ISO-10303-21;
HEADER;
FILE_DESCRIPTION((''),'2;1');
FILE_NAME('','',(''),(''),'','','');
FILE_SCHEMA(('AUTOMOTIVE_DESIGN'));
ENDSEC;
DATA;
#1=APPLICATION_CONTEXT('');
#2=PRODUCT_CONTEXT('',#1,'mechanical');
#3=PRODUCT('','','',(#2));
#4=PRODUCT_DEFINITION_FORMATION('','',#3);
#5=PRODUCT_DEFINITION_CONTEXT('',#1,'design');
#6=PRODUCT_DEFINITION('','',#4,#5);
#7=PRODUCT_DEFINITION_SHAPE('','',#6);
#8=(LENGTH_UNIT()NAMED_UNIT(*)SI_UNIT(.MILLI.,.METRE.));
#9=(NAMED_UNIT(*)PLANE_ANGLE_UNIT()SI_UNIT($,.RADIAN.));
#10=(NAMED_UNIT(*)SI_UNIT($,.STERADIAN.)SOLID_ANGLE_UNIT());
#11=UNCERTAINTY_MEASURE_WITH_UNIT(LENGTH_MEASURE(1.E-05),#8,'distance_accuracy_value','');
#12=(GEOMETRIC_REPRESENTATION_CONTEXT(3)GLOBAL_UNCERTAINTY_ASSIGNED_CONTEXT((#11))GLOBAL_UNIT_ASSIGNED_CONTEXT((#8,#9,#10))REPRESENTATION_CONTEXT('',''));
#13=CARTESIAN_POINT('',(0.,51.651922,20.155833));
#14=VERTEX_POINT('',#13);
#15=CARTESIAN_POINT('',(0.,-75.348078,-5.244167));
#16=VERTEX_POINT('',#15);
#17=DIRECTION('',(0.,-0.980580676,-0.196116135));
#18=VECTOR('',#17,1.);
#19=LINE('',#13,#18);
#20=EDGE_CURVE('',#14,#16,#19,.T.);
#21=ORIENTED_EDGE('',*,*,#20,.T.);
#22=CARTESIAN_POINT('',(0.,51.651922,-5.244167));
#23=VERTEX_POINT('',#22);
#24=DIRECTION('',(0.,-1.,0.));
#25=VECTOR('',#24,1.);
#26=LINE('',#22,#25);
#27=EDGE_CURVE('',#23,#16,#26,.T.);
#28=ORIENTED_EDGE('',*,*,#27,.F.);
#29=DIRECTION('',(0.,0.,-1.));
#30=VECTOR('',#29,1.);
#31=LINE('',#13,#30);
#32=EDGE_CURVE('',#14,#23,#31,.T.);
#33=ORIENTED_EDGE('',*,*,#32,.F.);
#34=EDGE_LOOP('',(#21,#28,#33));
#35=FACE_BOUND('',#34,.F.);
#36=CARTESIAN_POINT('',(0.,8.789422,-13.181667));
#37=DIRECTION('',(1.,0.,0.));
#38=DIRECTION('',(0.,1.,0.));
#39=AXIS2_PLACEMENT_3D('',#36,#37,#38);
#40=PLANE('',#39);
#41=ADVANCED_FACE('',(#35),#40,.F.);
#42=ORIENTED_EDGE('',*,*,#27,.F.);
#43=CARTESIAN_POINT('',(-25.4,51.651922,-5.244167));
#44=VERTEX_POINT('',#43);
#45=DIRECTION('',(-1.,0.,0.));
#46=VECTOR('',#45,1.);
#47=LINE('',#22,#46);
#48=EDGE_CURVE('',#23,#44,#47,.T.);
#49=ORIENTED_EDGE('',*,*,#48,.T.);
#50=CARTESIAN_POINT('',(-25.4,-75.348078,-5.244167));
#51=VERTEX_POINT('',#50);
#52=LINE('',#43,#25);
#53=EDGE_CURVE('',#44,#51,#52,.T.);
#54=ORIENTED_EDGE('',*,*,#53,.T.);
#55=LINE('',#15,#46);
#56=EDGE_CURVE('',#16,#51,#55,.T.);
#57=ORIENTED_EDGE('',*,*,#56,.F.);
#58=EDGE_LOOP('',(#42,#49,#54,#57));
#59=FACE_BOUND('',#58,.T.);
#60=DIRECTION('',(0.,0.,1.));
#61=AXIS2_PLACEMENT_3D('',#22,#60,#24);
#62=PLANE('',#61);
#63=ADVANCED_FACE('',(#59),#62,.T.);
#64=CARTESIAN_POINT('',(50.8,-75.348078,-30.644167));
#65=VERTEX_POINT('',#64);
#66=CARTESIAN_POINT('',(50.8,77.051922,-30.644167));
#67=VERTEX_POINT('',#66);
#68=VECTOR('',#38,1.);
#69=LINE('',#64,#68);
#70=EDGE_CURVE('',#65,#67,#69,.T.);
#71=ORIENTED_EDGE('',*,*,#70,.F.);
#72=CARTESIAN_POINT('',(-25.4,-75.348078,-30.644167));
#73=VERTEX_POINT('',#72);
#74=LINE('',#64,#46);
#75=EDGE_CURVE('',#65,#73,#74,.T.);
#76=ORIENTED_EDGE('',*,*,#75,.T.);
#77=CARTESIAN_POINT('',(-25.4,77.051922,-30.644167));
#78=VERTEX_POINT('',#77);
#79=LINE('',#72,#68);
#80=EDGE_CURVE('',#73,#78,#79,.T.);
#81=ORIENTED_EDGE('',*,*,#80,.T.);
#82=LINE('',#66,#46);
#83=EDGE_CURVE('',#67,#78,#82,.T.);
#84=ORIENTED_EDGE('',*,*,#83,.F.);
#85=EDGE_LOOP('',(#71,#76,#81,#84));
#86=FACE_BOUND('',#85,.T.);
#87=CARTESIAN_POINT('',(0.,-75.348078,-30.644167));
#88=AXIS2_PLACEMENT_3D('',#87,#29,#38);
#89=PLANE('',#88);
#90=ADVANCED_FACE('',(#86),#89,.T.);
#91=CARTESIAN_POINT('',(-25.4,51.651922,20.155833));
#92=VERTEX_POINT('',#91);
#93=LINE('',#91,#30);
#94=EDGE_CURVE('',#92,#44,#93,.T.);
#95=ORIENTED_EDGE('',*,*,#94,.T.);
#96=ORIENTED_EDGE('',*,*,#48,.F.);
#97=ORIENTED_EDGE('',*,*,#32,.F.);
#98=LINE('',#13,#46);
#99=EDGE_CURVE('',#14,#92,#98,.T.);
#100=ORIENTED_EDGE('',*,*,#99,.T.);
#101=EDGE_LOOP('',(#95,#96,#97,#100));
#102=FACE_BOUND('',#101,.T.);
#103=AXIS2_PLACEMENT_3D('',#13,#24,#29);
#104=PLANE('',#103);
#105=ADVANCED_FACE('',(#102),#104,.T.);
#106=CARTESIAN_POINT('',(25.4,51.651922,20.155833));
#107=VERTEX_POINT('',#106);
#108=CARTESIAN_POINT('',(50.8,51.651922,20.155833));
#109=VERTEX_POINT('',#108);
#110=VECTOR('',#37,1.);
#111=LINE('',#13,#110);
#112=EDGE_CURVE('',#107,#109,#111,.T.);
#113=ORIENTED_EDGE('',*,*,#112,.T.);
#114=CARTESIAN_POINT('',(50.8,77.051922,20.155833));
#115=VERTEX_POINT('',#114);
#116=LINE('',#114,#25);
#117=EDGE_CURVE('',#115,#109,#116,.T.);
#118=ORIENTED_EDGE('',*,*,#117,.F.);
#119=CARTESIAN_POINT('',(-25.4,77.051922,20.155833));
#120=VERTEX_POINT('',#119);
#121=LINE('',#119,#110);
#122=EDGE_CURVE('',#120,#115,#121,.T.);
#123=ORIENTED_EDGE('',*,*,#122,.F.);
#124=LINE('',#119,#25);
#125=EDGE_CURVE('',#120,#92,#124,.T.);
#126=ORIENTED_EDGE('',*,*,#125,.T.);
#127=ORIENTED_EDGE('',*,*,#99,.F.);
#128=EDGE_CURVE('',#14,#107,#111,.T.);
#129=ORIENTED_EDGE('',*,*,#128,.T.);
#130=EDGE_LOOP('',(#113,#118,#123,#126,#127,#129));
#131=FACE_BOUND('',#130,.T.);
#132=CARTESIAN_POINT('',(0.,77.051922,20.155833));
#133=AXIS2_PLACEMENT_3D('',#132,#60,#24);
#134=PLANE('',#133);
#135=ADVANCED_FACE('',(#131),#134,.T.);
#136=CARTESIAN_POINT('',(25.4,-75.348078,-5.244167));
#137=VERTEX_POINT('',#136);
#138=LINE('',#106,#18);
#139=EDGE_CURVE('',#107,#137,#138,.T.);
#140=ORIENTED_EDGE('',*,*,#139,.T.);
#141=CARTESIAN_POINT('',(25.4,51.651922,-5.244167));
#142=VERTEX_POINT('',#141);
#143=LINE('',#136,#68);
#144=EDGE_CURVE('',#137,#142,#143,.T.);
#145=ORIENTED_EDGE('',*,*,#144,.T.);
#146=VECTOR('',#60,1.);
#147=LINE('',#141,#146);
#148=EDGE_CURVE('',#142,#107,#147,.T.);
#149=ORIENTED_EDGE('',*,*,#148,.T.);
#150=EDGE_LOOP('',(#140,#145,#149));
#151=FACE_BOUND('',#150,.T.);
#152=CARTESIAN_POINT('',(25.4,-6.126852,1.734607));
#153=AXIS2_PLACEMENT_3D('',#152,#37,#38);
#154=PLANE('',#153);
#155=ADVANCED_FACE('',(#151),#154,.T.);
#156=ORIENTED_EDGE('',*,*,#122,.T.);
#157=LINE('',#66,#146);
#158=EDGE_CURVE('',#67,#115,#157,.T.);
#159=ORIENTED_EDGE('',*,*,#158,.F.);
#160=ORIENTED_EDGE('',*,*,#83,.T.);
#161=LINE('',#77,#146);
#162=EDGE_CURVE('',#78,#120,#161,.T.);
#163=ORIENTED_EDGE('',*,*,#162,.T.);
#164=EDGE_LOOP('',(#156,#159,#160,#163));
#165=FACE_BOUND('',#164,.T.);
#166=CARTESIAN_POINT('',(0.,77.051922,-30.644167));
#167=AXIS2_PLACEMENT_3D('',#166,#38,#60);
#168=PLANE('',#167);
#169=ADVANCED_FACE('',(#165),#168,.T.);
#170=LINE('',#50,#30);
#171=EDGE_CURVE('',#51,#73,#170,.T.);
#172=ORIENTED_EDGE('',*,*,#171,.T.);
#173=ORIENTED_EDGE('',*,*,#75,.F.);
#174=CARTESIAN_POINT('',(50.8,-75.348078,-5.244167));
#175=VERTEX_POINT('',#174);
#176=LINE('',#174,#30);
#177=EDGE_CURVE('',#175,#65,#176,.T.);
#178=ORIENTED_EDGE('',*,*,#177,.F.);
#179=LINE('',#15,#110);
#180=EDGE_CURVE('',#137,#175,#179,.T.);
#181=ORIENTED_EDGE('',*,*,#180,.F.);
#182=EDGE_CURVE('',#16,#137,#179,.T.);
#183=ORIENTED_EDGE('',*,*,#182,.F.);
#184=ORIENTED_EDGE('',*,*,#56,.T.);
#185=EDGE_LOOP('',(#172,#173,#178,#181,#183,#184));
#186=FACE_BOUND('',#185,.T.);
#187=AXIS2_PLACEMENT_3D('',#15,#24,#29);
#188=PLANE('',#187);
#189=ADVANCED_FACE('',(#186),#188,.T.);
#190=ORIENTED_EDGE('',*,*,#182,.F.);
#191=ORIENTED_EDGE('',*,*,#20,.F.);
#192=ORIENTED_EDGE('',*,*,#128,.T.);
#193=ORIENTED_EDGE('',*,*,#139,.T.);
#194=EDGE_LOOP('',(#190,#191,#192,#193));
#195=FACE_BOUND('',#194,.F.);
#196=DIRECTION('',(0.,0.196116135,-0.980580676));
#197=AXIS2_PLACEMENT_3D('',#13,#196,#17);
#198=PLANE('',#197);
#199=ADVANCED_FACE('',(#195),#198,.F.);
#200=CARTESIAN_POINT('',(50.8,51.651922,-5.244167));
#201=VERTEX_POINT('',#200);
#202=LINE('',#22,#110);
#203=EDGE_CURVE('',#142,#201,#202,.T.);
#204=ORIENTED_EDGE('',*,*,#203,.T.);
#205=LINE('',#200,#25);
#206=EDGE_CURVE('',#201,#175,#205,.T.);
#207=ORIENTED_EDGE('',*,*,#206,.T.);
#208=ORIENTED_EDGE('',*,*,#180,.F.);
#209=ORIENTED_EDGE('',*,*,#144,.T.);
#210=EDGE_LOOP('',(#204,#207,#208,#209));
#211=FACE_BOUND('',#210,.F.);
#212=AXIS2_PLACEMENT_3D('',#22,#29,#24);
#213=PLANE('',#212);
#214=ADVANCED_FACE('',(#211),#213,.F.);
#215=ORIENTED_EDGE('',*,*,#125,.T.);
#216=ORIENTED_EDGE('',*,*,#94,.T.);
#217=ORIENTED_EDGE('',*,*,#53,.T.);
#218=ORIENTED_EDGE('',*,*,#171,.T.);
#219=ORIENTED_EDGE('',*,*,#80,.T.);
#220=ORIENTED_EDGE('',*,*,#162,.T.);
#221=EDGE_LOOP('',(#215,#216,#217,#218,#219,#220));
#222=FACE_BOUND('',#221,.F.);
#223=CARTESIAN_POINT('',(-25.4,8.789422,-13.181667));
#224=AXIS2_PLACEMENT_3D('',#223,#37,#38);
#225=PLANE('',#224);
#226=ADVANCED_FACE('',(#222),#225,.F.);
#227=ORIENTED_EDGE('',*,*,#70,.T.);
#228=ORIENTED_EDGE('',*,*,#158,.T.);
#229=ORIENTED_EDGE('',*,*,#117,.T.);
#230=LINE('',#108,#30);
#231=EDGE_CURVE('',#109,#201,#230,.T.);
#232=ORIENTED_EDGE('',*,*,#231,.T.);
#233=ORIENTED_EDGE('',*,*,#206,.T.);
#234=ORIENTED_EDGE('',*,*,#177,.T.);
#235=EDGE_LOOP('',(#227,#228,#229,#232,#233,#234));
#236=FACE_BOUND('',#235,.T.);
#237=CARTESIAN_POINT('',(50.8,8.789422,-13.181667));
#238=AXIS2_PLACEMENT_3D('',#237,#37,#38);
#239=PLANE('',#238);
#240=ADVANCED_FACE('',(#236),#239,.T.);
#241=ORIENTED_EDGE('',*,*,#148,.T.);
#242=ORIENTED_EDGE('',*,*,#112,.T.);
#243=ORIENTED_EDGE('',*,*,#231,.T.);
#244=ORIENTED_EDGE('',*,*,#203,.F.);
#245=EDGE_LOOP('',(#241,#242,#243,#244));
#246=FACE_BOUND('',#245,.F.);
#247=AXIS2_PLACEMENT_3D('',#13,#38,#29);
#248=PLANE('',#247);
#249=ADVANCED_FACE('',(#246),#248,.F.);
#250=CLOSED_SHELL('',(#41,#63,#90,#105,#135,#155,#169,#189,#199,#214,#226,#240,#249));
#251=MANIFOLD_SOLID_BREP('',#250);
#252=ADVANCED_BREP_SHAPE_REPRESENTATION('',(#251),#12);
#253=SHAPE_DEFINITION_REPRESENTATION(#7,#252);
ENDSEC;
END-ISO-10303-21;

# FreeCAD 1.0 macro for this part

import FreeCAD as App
import Part
import Sketcher

V = App.Vector
Q = App.Units.Quantity

doc = App.newDocument("Part")
body = doc.addObject("PartDesign::Body", "Body")

sketch1 = doc.addObject("Sketcher::SketchObject", "Sketch")
body.addObject(sketch1)
sketch1.AttachmentSupport = (doc.YZ_Plane, [""])
sketch1.MapMode = "FlatFace"
sketch1.addGeometry(Part.LineSegment(V(52, -5, 0), V(52, 20, 0)), False)
sketch1.addGeometry(Part.LineSegment(V(52, 20, 0), V(-75, -5, 0)), False)
sketch1.addGeometry(Part.LineSegment(V(-75, -5, 0), V(52, -5, 0)), False)
sketch1.addConstraint(Sketcher.Constraint("Coincident", 0, 2, 1, 1))
sketch1.addConstraint(Sketcher.Constraint("Coincident", 1, 2, 2, 1))
sketch1.addConstraint(Sketcher.Constraint("Coincident", 2, 2, 0, 1))
sketch1.addConstraint(Sketcher.Constraint("Vertical", 0))
sketch1.addConstraint(Sketcher.Constraint("Horizontal", 2))
sketch1.addConstraint(Sketcher.Constraint("DistanceX", 2, 1, 2, 2, Q("5 in")))
sketch1.addConstraint(Sketcher.Constraint("DistanceY", 0, 1, 0, 2, Q("1 in")))
sketch1.addConstraint(Sketcher.Constraint("DistanceX", 1, 2, -1, 1, 75.348078))
sketch1.addConstraint(Sketcher.Constraint("DistanceY", -1, 1, 0, 2, 20.155833))
pad1 = doc.addObject("PartDesign::Pad", "Pad")
body.addObject(pad1)
pad1.Profile = sketch1
pad1.Length = Q("1 in")

sketch2 = doc.addObject("Sketcher::SketchObject", "Sketch001")
body.addObject(sketch2)
sketch2.AttachmentSupport = (doc.YZ_Plane, [""])
sketch2.MapMode = "FlatFace"
sketch2.addGeometry(Part.LineSegment(V(77, -31, 0), V(77, 20, 0)), False)
sketch2.addGeometry(Part.LineSegment(V(77, 20, 0), V(52, 20, 0)), False)
sketch2.addGeometry(Part.LineSegment(V(52, 20, 0), V(52, -5, 0)), False)
sketch2.addGeometry(Part.LineSegment(V(52, -5, 0), V(-75, -5, 0)), False)
sketch2.addGeometry(Part.LineSegment(V(-75, -5, 0), V(-75, -31, 0)), False)
sketch2.addGeometry(Part.LineSegment(V(-75, -31, 0), V(77, -31, 0)), False)
sketch2.addConstraint(Sketcher.Constraint("Coincident", 0, 2, 1, 1))
sketch2.addConstraint(Sketcher.Constraint("Coincident", 1, 2, 2, 1))
sketch2.addConstraint(Sketcher.Constraint("Coincident", 2, 2, 3, 1))
sketch2.addConstraint(Sketcher.Constraint("Coincident", 3, 2, 4, 1))
sketch2.addConstraint(Sketcher.Constraint("Coincident", 4, 2, 5, 1))
sketch2.addConstraint(Sketcher.Constraint("Coincident", 5, 2, 0, 1))
sketch2.addConstraint(Sketcher.Constraint("Vertical", 0))
sketch2.addConstraint(Sketcher.Constraint("Horizontal", 1))
sketch2.addConstraint(Sketcher.Constraint("Vertical", 2))
sketch2.addConstraint(Sketcher.Constraint("Horizontal", 3))
sketch2.addConstraint(Sketcher.Constraint("Vertical", 4))
sketch2.addConstraint(Sketcher.Constraint("Horizontal", 5))
sketch2.addConstraint(Sketcher.Constraint("Equal", 1, 2))
sketch2.addConstraint(Sketcher.Constraint("Equal", 2, 4))
sketch2.addConstraint(Sketcher.Constraint("DistanceX", 1, 2, 1, 1, Q("1 in")))
sketch2.addConstraint(Sketcher.Constraint("DistanceX", 3, 2, 3, 1, Q("5 in")))
sketch2.addConstraint(Sketcher.Constraint("DistanceX", 3, 2, -1, 1, 75.348078))
sketch2.addConstraint(Sketcher.Constraint("DistanceY", -1, 1, 0, 2, 20.155833))
pad2 = doc.addObject("PartDesign::Pad", "Pad001")
body.addObject(pad2)
pad2.Profile = sketch2
pad2.Type = "TwoLengths"
pad2.Length = Q("2 in")
pad2.Length2 = Q("1 in")

doc.recompute()
